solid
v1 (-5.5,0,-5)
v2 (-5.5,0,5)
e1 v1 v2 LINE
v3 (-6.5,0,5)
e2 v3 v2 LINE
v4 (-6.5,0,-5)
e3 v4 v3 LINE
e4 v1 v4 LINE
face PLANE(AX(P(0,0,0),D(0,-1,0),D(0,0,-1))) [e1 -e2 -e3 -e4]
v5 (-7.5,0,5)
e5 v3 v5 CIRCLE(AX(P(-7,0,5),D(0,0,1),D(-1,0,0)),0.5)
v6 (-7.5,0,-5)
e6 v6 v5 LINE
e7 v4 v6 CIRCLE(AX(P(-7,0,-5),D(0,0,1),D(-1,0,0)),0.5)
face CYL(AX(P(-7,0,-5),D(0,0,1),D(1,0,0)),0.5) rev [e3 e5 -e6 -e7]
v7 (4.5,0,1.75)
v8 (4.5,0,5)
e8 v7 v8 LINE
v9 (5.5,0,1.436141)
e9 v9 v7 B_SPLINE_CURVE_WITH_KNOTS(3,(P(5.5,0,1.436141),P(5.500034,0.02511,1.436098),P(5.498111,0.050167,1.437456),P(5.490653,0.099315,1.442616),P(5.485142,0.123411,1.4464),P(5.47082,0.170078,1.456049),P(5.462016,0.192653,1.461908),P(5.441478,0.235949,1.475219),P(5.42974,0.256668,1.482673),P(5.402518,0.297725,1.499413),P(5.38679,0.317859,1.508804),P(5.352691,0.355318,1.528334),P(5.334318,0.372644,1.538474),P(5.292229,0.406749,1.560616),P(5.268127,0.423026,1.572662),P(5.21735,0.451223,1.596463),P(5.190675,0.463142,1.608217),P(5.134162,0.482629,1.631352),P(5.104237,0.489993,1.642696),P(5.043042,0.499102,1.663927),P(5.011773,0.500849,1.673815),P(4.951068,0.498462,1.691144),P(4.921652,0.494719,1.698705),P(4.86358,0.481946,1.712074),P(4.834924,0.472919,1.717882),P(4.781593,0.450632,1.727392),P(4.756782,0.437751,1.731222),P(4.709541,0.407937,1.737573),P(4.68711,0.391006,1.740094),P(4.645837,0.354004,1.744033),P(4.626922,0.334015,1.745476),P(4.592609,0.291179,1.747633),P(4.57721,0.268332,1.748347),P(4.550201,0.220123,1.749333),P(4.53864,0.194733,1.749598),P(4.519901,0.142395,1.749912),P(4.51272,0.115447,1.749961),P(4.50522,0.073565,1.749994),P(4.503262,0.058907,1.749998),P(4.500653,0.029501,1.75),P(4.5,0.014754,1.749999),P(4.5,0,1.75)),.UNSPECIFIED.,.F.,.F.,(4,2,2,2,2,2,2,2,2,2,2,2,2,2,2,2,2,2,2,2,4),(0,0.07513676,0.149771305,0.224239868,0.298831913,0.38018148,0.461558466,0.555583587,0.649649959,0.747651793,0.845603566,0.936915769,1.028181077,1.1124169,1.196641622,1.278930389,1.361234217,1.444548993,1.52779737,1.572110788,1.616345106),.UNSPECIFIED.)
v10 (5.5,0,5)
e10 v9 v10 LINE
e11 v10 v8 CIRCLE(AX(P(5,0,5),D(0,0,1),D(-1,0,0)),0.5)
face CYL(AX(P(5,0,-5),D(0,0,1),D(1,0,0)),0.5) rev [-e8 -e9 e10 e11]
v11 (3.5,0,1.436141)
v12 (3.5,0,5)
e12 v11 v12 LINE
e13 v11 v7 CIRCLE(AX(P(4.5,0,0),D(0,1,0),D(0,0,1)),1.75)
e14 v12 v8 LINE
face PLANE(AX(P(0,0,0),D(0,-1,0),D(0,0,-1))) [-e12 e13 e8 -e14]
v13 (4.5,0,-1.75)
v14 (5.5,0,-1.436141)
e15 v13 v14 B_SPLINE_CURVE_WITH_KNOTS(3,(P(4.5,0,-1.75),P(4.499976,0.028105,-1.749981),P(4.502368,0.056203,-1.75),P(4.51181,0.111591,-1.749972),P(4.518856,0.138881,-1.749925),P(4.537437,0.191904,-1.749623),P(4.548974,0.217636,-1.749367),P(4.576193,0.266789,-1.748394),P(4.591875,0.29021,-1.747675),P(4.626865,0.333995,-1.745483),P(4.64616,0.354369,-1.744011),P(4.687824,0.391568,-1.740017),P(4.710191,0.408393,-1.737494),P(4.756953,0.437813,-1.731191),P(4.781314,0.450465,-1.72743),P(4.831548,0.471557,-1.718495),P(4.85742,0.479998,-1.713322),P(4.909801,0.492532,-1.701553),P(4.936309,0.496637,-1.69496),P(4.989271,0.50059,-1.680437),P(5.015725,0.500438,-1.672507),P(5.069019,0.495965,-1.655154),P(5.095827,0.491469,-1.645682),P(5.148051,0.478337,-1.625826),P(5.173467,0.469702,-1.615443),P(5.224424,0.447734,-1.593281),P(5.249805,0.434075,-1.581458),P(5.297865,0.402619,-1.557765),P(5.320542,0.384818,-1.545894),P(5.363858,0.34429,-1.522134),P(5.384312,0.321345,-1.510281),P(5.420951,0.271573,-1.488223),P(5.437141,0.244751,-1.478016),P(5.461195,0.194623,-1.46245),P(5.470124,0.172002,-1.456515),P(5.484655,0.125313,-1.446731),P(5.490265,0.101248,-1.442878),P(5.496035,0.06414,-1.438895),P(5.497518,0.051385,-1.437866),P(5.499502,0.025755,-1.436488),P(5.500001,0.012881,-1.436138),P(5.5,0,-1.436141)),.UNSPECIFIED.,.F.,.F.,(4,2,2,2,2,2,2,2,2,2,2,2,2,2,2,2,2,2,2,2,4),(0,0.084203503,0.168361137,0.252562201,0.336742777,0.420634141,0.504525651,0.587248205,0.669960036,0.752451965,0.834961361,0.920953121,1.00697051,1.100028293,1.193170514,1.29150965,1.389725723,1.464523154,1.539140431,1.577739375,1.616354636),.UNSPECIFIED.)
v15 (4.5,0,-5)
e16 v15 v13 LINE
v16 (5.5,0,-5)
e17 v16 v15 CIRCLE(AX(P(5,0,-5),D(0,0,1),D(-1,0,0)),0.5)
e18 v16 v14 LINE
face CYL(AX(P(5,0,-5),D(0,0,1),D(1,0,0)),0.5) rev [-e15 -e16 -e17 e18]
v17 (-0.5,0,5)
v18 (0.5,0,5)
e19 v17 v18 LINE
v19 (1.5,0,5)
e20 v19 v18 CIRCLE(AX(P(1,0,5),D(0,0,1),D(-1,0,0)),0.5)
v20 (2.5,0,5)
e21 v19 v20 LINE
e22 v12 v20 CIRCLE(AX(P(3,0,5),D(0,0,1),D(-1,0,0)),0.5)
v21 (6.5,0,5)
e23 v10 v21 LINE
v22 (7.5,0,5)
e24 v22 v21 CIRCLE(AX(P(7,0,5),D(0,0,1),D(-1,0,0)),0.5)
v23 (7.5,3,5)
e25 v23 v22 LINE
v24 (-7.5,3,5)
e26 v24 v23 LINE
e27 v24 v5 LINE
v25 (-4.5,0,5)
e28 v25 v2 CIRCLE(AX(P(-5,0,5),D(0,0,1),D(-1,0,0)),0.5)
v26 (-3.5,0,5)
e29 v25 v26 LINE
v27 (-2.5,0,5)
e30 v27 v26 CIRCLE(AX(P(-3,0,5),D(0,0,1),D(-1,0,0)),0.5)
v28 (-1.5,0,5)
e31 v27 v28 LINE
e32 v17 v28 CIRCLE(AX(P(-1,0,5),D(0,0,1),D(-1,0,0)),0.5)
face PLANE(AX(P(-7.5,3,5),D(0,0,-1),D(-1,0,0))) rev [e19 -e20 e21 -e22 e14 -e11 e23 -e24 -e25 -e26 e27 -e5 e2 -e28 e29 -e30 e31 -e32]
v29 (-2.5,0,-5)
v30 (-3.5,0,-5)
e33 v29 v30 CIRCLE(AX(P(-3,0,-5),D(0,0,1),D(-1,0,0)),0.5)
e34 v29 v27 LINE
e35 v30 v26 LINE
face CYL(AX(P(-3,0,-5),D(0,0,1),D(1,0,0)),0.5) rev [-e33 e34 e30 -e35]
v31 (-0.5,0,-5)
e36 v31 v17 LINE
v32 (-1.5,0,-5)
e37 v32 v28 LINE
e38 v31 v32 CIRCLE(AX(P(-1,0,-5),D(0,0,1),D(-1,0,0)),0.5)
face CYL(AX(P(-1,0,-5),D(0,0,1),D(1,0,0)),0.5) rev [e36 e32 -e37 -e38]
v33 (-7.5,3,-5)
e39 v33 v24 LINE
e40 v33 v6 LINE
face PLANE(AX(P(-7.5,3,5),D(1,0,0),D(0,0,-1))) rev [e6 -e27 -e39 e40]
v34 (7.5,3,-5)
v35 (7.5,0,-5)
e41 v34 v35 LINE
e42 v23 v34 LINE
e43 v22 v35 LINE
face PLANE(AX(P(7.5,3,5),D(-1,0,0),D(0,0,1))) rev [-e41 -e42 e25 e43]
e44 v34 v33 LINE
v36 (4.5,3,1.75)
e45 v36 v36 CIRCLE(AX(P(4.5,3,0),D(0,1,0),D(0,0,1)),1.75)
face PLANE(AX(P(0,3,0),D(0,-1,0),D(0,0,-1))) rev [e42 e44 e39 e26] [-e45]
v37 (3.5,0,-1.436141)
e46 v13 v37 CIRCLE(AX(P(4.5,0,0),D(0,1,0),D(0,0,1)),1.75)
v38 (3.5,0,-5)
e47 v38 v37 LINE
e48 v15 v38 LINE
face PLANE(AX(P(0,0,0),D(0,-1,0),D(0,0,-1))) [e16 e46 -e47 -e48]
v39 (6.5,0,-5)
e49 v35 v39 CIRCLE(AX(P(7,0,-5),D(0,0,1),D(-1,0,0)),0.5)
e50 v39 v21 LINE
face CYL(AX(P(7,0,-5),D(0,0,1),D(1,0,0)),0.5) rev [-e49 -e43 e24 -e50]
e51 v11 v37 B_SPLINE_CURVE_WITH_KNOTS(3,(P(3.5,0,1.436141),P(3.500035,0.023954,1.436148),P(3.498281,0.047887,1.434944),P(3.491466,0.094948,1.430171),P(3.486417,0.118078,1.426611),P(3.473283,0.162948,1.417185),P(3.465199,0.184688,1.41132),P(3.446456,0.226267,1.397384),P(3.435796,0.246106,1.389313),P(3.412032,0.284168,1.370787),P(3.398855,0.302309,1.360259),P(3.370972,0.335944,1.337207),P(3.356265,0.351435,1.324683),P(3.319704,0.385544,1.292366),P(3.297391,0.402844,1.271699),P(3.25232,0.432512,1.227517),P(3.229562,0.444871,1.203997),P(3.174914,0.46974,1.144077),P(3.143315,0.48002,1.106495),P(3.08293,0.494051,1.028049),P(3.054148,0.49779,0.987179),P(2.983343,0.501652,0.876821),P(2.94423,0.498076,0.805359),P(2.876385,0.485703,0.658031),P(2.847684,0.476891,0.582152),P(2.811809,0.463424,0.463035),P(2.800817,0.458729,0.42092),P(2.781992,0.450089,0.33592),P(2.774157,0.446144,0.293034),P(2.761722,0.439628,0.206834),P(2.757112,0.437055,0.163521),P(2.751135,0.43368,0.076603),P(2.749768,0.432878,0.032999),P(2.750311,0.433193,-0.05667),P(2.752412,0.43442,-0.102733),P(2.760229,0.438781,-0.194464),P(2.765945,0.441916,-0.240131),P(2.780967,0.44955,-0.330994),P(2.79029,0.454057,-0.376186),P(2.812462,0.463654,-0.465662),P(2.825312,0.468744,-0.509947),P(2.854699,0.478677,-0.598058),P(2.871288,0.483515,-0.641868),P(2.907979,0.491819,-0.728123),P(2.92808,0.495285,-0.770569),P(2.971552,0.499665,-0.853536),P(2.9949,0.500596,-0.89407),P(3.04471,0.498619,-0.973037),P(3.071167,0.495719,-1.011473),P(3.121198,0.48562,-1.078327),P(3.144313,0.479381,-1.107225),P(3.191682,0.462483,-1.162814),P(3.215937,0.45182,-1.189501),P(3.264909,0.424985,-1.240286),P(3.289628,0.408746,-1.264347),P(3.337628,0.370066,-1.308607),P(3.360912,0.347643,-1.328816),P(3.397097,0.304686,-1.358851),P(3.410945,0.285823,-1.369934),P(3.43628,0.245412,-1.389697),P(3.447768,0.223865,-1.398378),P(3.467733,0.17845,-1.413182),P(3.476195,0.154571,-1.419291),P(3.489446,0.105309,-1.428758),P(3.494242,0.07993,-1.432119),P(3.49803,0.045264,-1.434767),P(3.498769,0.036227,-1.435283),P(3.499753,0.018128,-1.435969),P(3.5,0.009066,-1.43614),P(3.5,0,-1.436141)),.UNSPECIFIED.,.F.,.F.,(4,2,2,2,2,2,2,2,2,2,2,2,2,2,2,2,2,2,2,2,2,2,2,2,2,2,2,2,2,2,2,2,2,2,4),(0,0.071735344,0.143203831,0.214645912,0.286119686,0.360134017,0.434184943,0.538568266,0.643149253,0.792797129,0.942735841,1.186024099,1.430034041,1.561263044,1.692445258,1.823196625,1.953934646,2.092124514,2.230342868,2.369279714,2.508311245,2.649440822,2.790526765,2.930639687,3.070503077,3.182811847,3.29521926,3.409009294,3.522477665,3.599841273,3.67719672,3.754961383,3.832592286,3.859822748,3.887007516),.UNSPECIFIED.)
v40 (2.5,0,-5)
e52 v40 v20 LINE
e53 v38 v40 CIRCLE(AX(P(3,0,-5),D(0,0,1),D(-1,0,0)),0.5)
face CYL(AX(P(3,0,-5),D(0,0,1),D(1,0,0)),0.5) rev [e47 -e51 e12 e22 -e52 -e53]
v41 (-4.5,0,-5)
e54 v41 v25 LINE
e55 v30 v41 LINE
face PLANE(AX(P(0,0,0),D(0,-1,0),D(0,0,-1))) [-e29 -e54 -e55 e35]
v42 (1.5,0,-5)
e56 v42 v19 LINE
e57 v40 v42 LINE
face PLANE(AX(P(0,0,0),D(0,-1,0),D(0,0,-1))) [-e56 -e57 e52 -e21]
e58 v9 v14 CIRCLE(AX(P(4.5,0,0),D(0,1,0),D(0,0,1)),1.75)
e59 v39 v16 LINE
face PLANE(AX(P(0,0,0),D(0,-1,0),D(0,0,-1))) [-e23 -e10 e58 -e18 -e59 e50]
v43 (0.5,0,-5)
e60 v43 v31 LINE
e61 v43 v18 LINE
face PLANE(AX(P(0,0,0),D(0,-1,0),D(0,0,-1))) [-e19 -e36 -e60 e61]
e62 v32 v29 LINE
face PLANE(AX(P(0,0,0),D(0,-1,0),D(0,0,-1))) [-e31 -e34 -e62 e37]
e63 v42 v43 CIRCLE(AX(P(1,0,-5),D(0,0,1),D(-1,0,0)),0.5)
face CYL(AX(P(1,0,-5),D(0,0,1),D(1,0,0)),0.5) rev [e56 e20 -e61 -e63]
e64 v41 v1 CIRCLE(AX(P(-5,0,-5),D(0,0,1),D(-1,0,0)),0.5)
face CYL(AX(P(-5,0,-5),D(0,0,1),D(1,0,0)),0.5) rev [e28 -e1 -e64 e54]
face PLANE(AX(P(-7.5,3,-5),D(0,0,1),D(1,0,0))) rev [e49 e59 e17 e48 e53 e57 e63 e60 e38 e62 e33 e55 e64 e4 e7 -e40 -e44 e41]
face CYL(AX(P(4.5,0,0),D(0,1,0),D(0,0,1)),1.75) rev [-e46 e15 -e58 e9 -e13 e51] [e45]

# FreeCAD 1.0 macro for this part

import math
import FreeCAD as App
import Part
import Sketcher
Q = App.Units.Quantity

doc = App.newDocument("Part")
body = doc.addObject("PartDesign::Body", "Body")

# Sketch on XZ plane
sketch1 = doc.addObject("Sketcher::SketchObject", "Sketch")
body.addObject(sketch1)
sketch1.AttachmentSupport = (doc.XZ_Plane, [""])
sketch1.MapMode = "FlatFace"
sketch1.addGeometry([
    Part.LineSegment(App.Vector(-7.5, -5, 0), App.Vector(-7.5, 5, 0)),
    Part.LineSegment(App.Vector(-7.5, 5, 0), App.Vector(7.5, 5, 0)),
    Part.LineSegment(App.Vector(7.5, 5, 0), App.Vector(7.5, -5, 0)),
    Part.LineSegment(App.Vector(7.5, -5, 0), App.Vector(-7.5, -5, 0)),
], False)
sketch1.addConstraint([
    Sketcher.Constraint("Coincident", 0, 2, 1, 1),
    Sketcher.Constraint("Coincident", 1, 2, 2, 1),
    Sketcher.Constraint("Coincident", 2, 2, 3, 1),
    Sketcher.Constraint("Coincident", 3, 2, 0, 1),
    Sketcher.Constraint("Vertical", 0),
    Sketcher.Constraint("Horizontal", 1),
    Sketcher.Constraint("Vertical", 2),
    Sketcher.Constraint("Horizontal", 3),
    Sketcher.Constraint("Symmetric", 0, 2, 2, 2, -1, 1),
    Sketcher.Constraint("DistanceX", 1, 1, 1, 2, Q("15 mm")),
    Sketcher.Constraint("DistanceY", 0, 1, 0, 2, Q("10 mm")),
])
pad1 = doc.addObject("PartDesign::Pad", "Pad")
body.addObject(pad1)
pad1.Profile = sketch1
pad1.Length = 3
pad1.Reversed = True

# Sketch on XZ plane
sketch2 = doc.addObject("Sketcher::SketchObject", "Sketch001")
body.addObject(sketch2)
sketch2.AttachmentSupport = (doc.XZ_Plane, [""])
sketch2.MapMode = "FlatFace"
sketch2.AttachmentOffset = App.Placement(App.Vector(0, 0, -3), App.Rotation())
sketch2.addGeometry(Part.Circle(App.Vector(4.5, 0, 0), App.Vector(0, 0, 1), 1.75), False)
sketch2.addConstraint([
    Sketcher.Constraint("PointOnObject", 0, 3, -1),
    Sketcher.Constraint("Diameter", 0, Q("3.5 mm")),
    Sketcher.Constraint("DistanceX", -1, 1, 0, 3, Q("4.5 mm")),
])
pocket1 = doc.addObject("PartDesign::Pocket", "Pocket")
body.addObject(pocket1)
pocket1.Profile = sketch2
pocket1.Type = "ThroughAll"
pocket1.Reversed = True

# Sketch on XY plane
sketch3 = doc.addObject("Sketcher::SketchObject", "Sketch002")
body.addObject(sketch3)
sketch3.AttachmentSupport = (doc.XY_Plane, [""])
sketch3.MapMode = "FlatFace"
sketch3.AttachmentOffset = App.Placement(App.Vector(0, 0, 5), App.Rotation())
sketch3.addGeometry([
    Part.LineSegment(App.Vector(-7.5, 0, 0), App.Vector(-6.5, 0, 0)),
    Part.ArcOfCircle(Part.Circle(App.Vector(-7, 0, 0), App.Vector(0, 0, 1), 0.5), math.radians(0), math.radians(180)),
    Part.LineSegment(App.Vector(-5.5, 0, 0), App.Vector(-4.5, 0, 0)),
    Part.ArcOfCircle(Part.Circle(App.Vector(-5, 0, 0), App.Vector(0, 0, 1), 0.5), math.radians(0), math.radians(180)),
], False)
sketch3.addConstraint([
    Sketcher.Constraint("Coincident", 0, 1, 1, 2),
    Sketcher.Constraint("Coincident", 1, 1, 0, 2),
    Sketcher.Constraint("Coincident", 2, 1, 3, 2),
    Sketcher.Constraint("Coincident", 3, 1, 2, 2),
    Sketcher.Constraint("Horizontal", 0),
    Sketcher.Constraint("Horizontal", 2),
    Sketcher.Constraint("Equal", 1, 3),
    Sketcher.Constraint("PointOnObject", 1, 3, -1),
    Sketcher.Constraint("PointOnObject", 3, 3, -1),
    Sketcher.Constraint("PointOnObject", 0, 1, -1),
    Sketcher.Constraint("PointOnObject", 2, 1, -1),
    Sketcher.Constraint("Radius", 1, Q("0.5 mm")),
    Sketcher.Constraint("DistanceX", 1, 3, -1, 1, Q("7 mm")),
    Sketcher.Constraint("DistanceX", 3, 3, -1, 1, Q("5 mm")),
])
pocket2 = doc.addObject("PartDesign::Pocket", "Pocket001")
body.addObject(pocket2)
pocket2.Profile = sketch3
pocket2.Type = "ThroughAll"
doc.recompute()

linearpattern = doc.addObject("PartDesign::LinearPattern", "LinearPattern")
body.addObject(linearpattern)
linearpattern.Originals = [pocket2]
linearpattern.Direction = (doc.X_Axis, [""])
linearpattern.Mode = "offset"
linearpattern.Offset = 2
linearpattern.Occurrences = 7
body.Tip = linearpattern

doc.recompute()
